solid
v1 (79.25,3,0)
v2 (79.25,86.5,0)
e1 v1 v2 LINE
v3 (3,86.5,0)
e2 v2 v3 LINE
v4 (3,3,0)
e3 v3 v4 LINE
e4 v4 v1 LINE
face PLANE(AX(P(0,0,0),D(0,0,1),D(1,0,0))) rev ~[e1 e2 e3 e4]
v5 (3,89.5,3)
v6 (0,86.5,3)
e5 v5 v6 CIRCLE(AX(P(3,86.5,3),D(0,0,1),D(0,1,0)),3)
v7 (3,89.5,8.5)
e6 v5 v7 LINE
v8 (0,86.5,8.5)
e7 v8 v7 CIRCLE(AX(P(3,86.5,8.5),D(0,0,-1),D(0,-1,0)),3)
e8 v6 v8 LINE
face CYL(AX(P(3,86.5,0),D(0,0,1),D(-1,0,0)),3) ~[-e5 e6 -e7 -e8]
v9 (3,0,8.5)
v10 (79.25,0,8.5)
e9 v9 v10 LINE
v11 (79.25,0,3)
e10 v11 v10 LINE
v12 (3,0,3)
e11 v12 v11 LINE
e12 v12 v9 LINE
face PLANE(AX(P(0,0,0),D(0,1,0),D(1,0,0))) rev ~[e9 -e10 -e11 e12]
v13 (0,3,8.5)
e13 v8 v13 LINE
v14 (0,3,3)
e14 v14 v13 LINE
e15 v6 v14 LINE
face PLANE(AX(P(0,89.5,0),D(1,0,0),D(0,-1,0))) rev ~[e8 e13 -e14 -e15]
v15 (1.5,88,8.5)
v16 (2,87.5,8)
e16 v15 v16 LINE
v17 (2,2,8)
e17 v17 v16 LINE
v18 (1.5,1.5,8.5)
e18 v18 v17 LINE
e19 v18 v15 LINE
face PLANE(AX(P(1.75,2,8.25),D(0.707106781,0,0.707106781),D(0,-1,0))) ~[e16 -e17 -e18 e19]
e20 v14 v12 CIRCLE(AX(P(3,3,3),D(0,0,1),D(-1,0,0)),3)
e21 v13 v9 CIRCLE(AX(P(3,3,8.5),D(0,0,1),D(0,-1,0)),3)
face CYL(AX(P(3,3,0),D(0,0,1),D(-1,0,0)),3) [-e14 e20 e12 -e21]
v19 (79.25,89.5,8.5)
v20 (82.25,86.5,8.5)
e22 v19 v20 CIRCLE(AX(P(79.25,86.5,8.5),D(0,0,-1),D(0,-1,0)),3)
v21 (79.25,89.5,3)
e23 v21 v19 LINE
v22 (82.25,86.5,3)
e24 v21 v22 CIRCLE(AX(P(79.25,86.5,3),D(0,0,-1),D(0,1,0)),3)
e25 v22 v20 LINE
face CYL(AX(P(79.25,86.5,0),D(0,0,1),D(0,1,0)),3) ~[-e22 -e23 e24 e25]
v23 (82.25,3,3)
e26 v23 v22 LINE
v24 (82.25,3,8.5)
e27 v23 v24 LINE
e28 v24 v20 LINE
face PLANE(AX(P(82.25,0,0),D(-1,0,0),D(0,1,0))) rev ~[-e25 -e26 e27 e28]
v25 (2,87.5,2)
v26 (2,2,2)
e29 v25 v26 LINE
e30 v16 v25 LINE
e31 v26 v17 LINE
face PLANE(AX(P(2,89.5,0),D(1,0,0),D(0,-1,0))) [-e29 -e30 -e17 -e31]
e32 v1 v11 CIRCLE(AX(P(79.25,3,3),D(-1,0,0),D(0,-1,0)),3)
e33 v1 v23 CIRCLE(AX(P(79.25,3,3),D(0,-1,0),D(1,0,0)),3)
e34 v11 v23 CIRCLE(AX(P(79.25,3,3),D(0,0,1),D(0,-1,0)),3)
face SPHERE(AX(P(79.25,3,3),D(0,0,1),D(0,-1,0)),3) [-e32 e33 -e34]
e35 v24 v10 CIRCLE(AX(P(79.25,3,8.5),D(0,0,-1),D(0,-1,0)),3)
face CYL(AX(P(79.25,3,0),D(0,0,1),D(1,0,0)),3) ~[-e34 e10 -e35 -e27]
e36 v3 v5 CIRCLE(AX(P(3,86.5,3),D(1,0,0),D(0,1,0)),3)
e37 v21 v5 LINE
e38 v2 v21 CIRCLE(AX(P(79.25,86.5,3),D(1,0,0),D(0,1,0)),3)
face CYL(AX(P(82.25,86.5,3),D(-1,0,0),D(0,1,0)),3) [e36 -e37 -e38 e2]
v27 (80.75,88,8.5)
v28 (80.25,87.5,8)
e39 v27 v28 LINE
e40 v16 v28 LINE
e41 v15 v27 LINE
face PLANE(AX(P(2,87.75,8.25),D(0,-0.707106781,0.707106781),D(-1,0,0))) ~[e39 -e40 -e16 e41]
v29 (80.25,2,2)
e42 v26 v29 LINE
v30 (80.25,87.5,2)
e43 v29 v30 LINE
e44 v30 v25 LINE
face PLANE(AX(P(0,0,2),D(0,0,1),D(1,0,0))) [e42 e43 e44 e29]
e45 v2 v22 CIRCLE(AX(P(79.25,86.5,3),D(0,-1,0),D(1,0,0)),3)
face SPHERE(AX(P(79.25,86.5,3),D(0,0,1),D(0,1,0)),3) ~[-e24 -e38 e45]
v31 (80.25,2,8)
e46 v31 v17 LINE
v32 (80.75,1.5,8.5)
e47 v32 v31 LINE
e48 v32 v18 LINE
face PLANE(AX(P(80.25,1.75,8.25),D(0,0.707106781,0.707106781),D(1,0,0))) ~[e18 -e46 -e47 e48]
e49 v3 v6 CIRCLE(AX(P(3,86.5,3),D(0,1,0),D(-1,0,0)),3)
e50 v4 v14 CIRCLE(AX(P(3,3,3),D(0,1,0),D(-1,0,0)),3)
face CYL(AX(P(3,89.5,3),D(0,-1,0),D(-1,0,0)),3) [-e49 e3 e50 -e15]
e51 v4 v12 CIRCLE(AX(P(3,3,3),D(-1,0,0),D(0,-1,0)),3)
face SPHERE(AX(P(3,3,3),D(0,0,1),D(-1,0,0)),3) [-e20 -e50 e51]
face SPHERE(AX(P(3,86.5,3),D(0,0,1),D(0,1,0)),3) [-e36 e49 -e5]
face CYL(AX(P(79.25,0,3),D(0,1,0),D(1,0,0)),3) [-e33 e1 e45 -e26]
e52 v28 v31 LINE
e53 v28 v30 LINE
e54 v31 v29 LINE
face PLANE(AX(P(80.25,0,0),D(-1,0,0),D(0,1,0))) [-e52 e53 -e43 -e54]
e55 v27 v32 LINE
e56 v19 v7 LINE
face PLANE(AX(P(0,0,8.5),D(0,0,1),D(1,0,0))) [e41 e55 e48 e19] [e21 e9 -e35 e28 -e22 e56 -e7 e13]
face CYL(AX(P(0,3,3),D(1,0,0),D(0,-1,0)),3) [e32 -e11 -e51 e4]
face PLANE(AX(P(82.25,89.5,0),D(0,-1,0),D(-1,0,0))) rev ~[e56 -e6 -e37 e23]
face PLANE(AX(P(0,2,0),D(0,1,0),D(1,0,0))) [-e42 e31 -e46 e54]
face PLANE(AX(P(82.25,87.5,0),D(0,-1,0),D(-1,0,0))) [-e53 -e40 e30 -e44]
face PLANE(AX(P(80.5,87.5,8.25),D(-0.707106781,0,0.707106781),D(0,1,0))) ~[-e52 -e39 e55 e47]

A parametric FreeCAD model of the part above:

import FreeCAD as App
import Part
import Sketcher
Q = App.Units.Quantity


def edges_at(feature, points):
    """Names of the edges that pass closest to the given points."""
    edges = feature.Shape.Edges
    near = lambda p: min(range(len(edges)), key=lambda i: edges[i].distToShape(Part.Vertex(*p))[0])
    return sorted({f"Edge{near(p) + 1}" for p in points})


def faces_at(feature, points):
    """Names of the faces that lie closest to the given points."""
    faces = feature.Shape.Faces
    near = lambda p: min(range(len(faces)), key=lambda i: faces[i].distToShape(Part.Vertex(*p))[0])
    return sorted({f"Face{near(p) + 1}" for p in points})


def add_polygon(sketch, points):
    """Adds a closed chain of lines whose ends are joined by coincident constraints."""
    first, n = sketch.GeometryCount, len(points)
    for a, b in zip(points, points[1:] + points[:1]):
        sketch.addGeometry(Part.LineSegment(App.Vector(*a, 0), App.Vector(*b, 0)), False)
    for i in range(n):
        sketch.addConstraint(Sketcher.Constraint("Coincident", first + i, 2, first + (i + 1) % n, 1))

doc = App.newDocument("Part")
body = doc.addObject("PartDesign::Body", "Body")

sketch1 = body.newObject("Sketcher::SketchObject", "Sketch")
sketch1.AttachmentSupport = (doc.getObject("XY_Plane"), [""])
sketch1.MapMode = "FlatFace"
add_polygon(sketch1, [(0, 90), (0, 0), (82, 0), (82, 90)])
sketch1.addConstraint(Sketcher.Constraint("Vertical", 0))
sketch1.addConstraint(Sketcher.Constraint("Horizontal", 1))
sketch1.addConstraint(Sketcher.Constraint("Vertical", 2))
sketch1.addConstraint(Sketcher.Constraint("Horizontal", 3))
sketch1.addConstraint(Sketcher.Constraint("Coincident", 0, 2, -1, 1))
sketch1.addConstraint(Sketcher.Constraint("DistanceY", 0, 2, 0, 1, Q("89.5 mm")))
sketch1.addConstraint(Sketcher.Constraint("DistanceX", 1, 1, 1, 2, Q("82.25 mm")))
pad1 = body.newObject("PartDesign::Pad", "Pad")
pad1.Profile = sketch1
pad1.Length = 8.5
doc.recompute()

thickness = body.newObject("PartDesign::Thickness", "Thickness")
thickness.Base = (pad1, faces_at(pad1, [(27.417, 59.667, 8.5)]))
thickness.Value = 2
thickness.Reversed = True
thickness.Join = "Intersection"
doc.recompute()

fillet = body.newObject("PartDesign::Fillet", "Fillet")
fillet.Base = (thickness, edges_at(thickness, [
    (0, 0, 4.25),
    (82.25, 0, 4.25),
    (82.25, 89.5, 4.25),
    (0, 89.5, 4.25),
    (41.125, 89.5, 0),
    (0, 44.75, 0),
    (41.125, 0, 0),
    (82.25, 44.75, 0),
]))
fillet.Radius = 3
doc.recompute()

chamfer = body.newObject("PartDesign::Chamfer", "Chamfer")
chamfer.Base = (fillet, edges_at(fillet, [
    (2, 44.75, 8.5),
    (41.125, 2, 8.5),
    (41.125, 87.5, 8.5),
    (80.25, 44.75, 8.5),
]))
chamfer.Size = 0.5

doc.recompute()
